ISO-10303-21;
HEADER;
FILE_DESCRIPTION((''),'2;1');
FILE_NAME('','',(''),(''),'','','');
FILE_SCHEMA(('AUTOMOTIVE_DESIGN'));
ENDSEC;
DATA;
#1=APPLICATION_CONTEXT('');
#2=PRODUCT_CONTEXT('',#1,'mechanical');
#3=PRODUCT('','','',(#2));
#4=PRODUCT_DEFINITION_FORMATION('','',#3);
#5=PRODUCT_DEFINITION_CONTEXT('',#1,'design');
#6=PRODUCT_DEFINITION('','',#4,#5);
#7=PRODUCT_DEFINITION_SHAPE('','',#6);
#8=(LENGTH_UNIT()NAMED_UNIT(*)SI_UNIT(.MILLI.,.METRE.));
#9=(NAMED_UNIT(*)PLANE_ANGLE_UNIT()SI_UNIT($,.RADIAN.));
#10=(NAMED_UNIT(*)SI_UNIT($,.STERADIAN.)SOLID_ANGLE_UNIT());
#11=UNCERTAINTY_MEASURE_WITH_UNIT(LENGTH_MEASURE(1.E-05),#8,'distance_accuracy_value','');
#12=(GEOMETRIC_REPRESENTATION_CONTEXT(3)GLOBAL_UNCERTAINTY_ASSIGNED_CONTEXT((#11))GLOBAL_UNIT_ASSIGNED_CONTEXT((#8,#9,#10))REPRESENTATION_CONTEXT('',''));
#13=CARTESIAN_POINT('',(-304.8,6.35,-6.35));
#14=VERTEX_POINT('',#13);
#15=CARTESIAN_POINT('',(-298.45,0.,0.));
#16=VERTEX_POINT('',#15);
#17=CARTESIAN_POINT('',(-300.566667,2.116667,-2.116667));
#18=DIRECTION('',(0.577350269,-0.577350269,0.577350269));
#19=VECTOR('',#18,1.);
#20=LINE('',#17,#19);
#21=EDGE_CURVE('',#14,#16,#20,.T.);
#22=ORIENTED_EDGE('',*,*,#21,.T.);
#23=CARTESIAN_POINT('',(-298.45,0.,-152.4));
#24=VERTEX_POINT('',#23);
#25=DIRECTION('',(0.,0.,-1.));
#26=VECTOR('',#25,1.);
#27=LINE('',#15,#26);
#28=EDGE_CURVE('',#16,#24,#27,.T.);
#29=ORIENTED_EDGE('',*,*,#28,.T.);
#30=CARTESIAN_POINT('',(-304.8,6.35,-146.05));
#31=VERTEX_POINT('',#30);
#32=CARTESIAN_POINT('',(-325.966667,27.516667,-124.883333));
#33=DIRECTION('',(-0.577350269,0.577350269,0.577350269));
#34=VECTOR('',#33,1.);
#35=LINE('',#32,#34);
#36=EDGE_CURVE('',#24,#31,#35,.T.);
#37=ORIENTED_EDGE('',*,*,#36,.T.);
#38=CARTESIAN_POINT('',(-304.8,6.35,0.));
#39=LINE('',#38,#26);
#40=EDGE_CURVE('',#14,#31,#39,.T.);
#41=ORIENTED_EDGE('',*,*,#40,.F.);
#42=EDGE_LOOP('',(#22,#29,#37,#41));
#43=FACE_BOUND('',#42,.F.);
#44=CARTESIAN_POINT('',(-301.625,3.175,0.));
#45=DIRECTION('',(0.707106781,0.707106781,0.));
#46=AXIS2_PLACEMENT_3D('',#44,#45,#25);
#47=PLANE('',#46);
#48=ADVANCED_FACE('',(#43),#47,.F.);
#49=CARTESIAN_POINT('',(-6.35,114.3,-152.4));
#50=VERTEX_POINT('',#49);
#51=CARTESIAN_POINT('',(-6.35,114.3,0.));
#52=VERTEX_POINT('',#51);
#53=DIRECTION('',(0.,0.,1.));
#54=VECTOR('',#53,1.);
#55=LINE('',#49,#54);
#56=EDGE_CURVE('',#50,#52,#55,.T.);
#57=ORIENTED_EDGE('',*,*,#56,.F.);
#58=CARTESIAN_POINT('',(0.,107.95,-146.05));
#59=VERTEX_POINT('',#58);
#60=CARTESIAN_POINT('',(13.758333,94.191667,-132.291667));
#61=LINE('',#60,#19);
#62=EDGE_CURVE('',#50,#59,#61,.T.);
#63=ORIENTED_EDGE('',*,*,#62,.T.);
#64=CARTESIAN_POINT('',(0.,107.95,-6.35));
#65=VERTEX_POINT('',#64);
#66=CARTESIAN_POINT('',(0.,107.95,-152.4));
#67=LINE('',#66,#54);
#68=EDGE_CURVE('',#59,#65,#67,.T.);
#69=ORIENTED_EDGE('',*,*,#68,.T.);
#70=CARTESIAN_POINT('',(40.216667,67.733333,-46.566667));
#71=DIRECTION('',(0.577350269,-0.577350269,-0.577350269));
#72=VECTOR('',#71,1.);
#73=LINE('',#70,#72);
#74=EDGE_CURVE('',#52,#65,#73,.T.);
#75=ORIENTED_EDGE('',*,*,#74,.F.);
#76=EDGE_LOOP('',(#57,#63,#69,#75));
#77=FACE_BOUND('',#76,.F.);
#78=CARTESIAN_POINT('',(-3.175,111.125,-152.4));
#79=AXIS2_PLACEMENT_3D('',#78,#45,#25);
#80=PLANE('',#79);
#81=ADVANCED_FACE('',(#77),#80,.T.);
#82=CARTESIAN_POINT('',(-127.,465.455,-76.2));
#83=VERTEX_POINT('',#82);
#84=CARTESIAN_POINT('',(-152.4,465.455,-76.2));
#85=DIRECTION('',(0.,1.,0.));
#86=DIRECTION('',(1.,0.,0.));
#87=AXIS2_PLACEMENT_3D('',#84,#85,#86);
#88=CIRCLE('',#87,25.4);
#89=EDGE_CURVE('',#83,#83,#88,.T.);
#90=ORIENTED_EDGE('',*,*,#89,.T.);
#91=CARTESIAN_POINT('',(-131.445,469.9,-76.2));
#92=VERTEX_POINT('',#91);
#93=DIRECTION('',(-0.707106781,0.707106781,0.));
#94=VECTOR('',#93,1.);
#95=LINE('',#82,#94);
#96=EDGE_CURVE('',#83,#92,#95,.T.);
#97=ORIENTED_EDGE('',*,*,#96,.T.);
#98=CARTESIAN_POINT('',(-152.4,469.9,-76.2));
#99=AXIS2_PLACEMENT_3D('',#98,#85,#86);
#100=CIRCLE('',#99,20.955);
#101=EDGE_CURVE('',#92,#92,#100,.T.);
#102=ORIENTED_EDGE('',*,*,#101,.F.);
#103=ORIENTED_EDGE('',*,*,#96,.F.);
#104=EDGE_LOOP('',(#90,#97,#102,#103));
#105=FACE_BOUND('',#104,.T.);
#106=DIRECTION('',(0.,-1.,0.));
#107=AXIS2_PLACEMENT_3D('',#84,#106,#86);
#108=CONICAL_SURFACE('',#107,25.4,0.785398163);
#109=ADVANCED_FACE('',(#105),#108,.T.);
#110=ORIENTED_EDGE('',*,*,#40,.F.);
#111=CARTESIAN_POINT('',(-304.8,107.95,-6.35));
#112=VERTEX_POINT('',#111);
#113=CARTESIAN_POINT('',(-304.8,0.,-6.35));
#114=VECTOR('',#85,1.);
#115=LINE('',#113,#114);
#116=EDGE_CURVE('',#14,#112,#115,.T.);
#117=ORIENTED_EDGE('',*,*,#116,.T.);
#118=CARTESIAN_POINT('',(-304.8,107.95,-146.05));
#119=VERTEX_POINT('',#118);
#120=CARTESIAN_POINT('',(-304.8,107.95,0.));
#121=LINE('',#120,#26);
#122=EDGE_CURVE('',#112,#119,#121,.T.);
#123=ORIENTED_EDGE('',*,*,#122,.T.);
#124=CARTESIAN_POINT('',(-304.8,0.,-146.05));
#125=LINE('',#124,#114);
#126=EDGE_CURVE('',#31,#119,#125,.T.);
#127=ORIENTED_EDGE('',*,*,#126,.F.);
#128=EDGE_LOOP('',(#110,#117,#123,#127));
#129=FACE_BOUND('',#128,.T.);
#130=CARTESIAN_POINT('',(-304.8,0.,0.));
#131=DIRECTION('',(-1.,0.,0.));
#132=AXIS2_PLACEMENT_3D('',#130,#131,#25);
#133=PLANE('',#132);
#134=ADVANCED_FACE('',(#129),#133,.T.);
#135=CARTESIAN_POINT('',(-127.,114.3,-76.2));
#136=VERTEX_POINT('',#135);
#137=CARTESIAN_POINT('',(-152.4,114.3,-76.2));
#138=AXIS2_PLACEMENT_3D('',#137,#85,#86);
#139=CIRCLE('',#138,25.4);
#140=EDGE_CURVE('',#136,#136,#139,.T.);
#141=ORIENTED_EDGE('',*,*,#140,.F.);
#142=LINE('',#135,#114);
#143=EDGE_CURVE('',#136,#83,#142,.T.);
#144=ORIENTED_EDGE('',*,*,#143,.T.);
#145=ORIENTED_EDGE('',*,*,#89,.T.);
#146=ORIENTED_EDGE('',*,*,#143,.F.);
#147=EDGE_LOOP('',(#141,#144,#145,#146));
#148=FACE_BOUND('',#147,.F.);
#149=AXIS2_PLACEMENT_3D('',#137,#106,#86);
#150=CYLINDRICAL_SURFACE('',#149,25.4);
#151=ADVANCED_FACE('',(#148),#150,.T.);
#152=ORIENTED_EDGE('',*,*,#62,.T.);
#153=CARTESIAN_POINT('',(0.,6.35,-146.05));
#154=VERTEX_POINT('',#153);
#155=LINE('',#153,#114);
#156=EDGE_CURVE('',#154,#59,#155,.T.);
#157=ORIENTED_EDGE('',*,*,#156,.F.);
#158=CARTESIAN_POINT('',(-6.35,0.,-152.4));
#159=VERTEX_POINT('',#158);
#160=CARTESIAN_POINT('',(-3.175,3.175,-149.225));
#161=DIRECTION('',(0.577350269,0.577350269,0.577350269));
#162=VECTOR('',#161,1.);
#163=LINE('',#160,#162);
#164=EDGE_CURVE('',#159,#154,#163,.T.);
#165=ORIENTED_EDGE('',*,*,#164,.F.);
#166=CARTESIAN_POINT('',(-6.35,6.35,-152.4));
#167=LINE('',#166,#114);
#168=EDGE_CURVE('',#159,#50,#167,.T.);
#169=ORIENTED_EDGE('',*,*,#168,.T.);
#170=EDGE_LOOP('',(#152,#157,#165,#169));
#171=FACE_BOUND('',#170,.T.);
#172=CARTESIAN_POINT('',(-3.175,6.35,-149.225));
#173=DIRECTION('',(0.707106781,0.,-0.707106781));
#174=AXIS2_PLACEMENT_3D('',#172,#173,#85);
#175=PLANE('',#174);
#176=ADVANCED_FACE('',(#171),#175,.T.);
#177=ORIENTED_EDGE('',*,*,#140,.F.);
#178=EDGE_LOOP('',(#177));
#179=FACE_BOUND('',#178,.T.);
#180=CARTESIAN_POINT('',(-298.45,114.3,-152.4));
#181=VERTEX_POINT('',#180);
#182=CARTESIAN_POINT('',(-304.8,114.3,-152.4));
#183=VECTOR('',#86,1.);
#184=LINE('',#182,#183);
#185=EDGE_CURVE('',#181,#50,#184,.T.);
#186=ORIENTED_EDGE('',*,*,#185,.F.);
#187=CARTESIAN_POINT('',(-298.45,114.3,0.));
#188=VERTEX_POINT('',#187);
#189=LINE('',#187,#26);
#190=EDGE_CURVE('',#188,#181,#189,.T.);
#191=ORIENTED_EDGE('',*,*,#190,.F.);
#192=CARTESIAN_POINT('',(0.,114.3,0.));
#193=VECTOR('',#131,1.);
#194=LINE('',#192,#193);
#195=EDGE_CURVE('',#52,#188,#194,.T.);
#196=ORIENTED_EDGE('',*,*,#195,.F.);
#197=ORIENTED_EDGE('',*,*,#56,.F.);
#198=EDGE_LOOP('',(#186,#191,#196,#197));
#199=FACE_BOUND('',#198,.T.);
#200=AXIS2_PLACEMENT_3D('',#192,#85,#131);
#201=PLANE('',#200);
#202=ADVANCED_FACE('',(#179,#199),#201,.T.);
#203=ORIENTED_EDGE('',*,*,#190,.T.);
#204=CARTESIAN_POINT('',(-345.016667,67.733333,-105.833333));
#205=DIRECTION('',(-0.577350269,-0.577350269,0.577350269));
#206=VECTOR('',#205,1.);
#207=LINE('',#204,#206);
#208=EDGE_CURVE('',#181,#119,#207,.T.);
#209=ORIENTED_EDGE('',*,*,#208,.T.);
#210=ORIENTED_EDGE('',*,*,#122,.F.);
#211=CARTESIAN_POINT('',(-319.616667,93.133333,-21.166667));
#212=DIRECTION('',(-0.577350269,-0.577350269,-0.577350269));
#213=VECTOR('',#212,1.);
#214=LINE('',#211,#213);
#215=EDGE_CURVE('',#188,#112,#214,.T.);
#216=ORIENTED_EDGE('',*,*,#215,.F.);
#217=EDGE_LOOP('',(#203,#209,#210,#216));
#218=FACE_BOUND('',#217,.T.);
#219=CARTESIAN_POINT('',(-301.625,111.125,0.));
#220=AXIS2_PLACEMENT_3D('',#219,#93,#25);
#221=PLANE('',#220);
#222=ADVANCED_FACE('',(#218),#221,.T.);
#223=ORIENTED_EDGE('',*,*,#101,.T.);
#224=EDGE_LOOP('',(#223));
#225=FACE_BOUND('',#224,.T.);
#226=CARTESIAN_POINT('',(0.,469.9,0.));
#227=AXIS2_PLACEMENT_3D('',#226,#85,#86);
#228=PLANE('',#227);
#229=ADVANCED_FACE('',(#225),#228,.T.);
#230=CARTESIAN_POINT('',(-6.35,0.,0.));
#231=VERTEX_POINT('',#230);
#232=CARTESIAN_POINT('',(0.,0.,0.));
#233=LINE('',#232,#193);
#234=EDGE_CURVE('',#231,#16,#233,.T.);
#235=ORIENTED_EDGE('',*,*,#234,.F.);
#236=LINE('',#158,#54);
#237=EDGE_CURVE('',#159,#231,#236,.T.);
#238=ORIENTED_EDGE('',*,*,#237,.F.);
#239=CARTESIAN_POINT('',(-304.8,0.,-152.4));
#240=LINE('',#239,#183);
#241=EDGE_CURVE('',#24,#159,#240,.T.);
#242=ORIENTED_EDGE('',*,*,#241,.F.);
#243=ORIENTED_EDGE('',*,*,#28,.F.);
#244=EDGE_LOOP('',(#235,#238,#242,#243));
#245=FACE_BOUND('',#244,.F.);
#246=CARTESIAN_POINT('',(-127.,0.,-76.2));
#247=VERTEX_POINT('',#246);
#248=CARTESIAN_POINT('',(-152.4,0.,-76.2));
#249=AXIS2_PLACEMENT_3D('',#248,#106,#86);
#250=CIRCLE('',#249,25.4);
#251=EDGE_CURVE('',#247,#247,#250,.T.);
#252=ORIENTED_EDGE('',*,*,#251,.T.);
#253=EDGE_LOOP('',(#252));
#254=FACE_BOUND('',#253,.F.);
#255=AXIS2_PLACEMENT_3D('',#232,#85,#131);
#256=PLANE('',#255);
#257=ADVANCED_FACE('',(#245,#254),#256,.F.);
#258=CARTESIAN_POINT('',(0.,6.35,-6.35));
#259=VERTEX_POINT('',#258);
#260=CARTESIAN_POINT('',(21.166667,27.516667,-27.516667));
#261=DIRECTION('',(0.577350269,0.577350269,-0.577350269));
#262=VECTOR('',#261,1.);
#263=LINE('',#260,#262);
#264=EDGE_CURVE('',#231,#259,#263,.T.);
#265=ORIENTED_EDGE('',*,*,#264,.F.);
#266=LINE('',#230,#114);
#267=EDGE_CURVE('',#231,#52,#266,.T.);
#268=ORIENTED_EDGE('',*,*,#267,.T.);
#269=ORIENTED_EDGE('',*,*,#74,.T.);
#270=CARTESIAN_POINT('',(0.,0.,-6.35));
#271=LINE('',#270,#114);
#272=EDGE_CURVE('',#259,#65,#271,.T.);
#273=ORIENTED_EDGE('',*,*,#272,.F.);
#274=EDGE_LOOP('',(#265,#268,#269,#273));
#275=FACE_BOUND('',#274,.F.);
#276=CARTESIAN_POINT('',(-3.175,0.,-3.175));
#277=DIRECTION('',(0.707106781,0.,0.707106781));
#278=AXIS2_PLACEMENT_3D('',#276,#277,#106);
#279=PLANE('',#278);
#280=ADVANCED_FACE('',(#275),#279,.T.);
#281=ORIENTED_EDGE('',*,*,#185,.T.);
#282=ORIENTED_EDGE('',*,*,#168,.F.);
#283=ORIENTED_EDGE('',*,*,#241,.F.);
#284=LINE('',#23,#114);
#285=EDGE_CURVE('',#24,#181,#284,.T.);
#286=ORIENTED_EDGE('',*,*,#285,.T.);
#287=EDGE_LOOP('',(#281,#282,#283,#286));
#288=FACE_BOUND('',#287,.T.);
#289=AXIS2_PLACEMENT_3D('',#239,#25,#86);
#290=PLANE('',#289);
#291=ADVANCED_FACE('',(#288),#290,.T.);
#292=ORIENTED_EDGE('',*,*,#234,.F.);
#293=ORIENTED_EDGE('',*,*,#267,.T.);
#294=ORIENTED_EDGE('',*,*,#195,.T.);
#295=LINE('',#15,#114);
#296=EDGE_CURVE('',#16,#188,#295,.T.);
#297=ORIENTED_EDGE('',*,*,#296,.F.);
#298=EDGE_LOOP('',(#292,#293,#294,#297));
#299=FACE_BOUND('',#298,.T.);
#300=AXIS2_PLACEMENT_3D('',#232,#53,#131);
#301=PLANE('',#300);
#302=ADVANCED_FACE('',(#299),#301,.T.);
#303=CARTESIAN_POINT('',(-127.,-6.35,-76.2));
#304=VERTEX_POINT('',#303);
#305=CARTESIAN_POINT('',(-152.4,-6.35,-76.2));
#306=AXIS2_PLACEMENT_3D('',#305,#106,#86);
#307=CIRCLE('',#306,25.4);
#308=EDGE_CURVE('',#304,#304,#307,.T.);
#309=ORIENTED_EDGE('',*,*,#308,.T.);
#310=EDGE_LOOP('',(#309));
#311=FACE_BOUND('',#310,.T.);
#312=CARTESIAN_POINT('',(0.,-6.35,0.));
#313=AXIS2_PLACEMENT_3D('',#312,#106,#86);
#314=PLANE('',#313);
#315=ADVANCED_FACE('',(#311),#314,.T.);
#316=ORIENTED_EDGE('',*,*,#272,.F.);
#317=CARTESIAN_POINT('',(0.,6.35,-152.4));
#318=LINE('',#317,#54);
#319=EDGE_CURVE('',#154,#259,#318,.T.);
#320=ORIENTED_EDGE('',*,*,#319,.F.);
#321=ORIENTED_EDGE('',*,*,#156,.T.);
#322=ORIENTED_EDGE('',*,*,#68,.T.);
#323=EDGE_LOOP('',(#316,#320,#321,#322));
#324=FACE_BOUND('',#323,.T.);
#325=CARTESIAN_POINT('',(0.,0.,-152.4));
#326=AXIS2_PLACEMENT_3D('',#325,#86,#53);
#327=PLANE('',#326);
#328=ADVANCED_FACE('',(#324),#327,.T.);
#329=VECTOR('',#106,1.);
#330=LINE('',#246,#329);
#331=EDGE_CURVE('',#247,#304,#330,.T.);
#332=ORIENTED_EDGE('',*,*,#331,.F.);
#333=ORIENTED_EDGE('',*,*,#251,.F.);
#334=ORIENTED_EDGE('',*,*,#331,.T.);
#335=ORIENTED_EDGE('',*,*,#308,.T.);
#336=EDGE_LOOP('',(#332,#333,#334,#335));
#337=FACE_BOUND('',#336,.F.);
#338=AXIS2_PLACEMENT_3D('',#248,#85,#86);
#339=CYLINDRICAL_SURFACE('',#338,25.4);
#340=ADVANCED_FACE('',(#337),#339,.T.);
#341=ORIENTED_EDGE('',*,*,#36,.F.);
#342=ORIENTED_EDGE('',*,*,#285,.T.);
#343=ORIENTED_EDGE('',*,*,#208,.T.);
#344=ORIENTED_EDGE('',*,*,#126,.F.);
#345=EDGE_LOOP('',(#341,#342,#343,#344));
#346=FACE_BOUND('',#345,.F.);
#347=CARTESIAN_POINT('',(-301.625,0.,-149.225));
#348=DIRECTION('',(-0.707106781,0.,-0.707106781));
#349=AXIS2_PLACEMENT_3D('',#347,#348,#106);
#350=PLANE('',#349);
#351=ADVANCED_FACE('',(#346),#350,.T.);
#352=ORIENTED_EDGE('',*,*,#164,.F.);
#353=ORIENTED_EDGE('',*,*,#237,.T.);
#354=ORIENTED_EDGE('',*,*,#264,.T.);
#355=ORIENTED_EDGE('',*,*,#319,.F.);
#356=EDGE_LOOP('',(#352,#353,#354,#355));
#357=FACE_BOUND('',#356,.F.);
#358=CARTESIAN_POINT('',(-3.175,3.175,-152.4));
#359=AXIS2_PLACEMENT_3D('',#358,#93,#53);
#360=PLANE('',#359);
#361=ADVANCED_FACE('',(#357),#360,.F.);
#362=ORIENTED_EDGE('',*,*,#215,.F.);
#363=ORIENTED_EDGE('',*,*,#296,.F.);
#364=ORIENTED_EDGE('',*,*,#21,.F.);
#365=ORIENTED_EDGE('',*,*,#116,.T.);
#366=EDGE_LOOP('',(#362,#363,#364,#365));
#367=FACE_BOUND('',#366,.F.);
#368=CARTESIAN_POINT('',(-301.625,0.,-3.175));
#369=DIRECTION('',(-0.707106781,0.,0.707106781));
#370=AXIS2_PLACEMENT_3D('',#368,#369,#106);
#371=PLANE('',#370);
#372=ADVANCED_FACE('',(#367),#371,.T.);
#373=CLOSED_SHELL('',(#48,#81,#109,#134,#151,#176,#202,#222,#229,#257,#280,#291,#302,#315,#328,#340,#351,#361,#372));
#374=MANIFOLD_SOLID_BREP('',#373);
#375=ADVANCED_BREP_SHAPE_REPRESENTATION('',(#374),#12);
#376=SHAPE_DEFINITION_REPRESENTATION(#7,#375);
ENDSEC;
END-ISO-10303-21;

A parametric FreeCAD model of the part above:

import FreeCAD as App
import Part
import Sketcher

V = App.Vector
Q = App.Units.Quantity


def edges_at(feature, points):
    """Names of the edges that pass closest to the given points."""
    edges = feature.Shape.Edges
    near = lambda p: min(range(len(edges)), key=lambda i: edges[i].distToShape(Part.Vertex(*p))[0])
    return sorted({f"Edge{near(p) + 1}" for p in points})

doc = App.newDocument("Part")
params = doc.addObject("Spreadsheet::Sheet", "Params")
for row, (alias, value) in enumerate([
    ("sketch1_width", "12 in"),
    ("sketch1_height", "6 in"),
    ("pad1_length", "4.5 in"),
    ("sketch2_diameter", "2 in"),
    ("pad2_length", "14 in"),
    ("chamfer_size", "0.25 in"),
    ("chamfer2_size", "0.25 in"),
    ("chamfer3_size", "0.25 in"),
    ("chamfer4_size", "0.25 in"),
    ("chamfer5_size", "0.25 in"),
    ("chamfer6_size", "0.175 in"),
    ("sketch3_diameter", "2 in"),
    ("pad3_length", "0.25 in"),
], start=1):
    params.set(f"A{row}", alias)
    params.set(f"B{row}", "=" + value)
    params.setAlias(f"B{row}", alias)

body = doc.addObject("PartDesign::Body", "Body")

# Sketch on XZ plane
sketch1 = body.newObject("Sketcher::SketchObject", "Sketch")
sketch1.AttachmentSupport = (doc.getObject("XZ_Plane"), [""])
sketch1.MapMode = "FlatFace"
sketch1.addGeometry([
    Part.LineSegment(V(-305, 0, 0), V(0, 0, 0)),
    Part.LineSegment(V(0, 0, 0), V(0, -152, 0)),
    Part.LineSegment(V(0, -152, 0), V(-305, -152, 0)),
    Part.LineSegment(V(-305, -152, 0), V(-305, 0, 0)),
], False)
sketch1.addConstraint([
    Sketcher.Constraint("Coincident", 0, 2, 1, 1),
    Sketcher.Constraint("Coincident", 1, 2, 2, 1),
    Sketcher.Constraint("Coincident", 2, 2, 3, 1),
    Sketcher.Constraint("Coincident", 3, 2, 0, 1),
    Sketcher.Constraint("Horizontal", 0),
    Sketcher.Constraint("Vertical", 1),
    Sketcher.Constraint("Horizontal", 2),
    Sketcher.Constraint("Vertical", 3),
    Sketcher.Constraint("Coincident", 0, 2, -1, 1),
    Sketcher.Constraint("DistanceX", 0, 1, 0, 2, Q("12 in")),
    Sketcher.Constraint("DistanceY", 1, 2, 1, 1, Q("6 in")),
])
sketch1.setExpression("Constraints[9]", "Params.sketch1_width")
sketch1.setExpression("Constraints[10]", "Params.sketch1_height")
pad1 = body.newObject("PartDesign::Pad", "Pad")
pad1.Profile = sketch1
pad1.setExpression("Length", "Params.pad1_length")
pad1.Reversed = True

# Sketch on XZ plane
sketch2 = body.newObject("Sketcher::SketchObject", "Sketch001")
sketch2.AttachmentSupport = (doc.getObject("XZ_Plane"), [""])
sketch2.MapMode = "FlatFace"
sketch2.AttachmentOffset = App.Placement(V(0, 0, -4.5 * 25.4), App.Rotation())
sketch2.addGeometry(Part.Circle(V(-152, -76, 0), V(0, 0, 1), 25), False)
sketch2.addConstraint([
    Sketcher.Constraint("Diameter", 0, Q("2 in")),
    Sketcher.Constraint("DistanceX", 0, 3, -1, 1, Q("6 in")),
    Sketcher.Constraint("DistanceY", 0, 3, -1, 1, Q("3 in")),
])
sketch2.setExpression("Constraints[0]", "Params.sketch2_diameter")
pad2 = body.newObject("PartDesign::Pad", "Pad001")
pad2.Profile = sketch2
pad2.setExpression("Length", "Params.pad2_length")
pad2.Reversed = True
doc.recompute()

chamfer = body.newObject("PartDesign::Chamfer", "Chamfer")
chamfer.Base = (pad2, edges_at(pad2, [(0, 114.3, -76.2)]))
chamfer.setExpression("Size", "Params.chamfer_size")
doc.recompute()

chamfer2 = body.newObject("PartDesign::Chamfer", "Chamfer001")
chamfer2.Base = (chamfer, edges_at(chamfer, [(0, 53.975, 0)]))
chamfer2.setExpression("Size", "Params.chamfer2_size")
doc.recompute()

chamfer3 = body.newObject("PartDesign::Chamfer", "Chamfer002")
chamfer3.Base = (chamfer2, edges_at(chamfer2, [(0, 0, -79.375)]))
chamfer3.setExpression("Size", "Params.chamfer3_size")
doc.recompute()

chamfer4 = body.newObject("PartDesign::Chamfer", "Chamfer003")
chamfer4.Base = (chamfer3, edges_at(chamfer3, [(0, 57.15, -152.4)]))
chamfer4.setExpression("Size", "Params.chamfer4_size")
doc.recompute()

chamfer5 = body.newObject("PartDesign::Chamfer", "Chamfer004")
chamfer5.Base = (chamfer4, edges_at(chamfer4, [
    (-304.8, 114.3, -76.2),
    (-304.8, 57.15, -152.4),
    (-304.8, 57.15, 0),
    (-304.8, 0, -76.2),
]))
chamfer5.setExpression("Size", "Params.chamfer5_size")
doc.recompute()

chamfer6 = body.newObject("PartDesign::Chamfer", "Chamfer005")
chamfer6.Base = (chamfer5, edges_at(chamfer5, [(-177.8, 469.9, -76.2)]))
chamfer6.setExpression("Size", "Params.chamfer6_size")

# Sketch on XZ plane
sketch3 = body.newObject("Sketcher::SketchObject", "Sketch002")
sketch3.AttachmentSupport = (doc.getObject("XZ_Plane"), [""])
sketch3.MapMode = "FlatFace"
sketch3.addGeometry(Part.Circle(V(-152, -76, 0), V(0, 0, 1), 25), False)
sketch3.addConstraint([
    Sketcher.Constraint("Diameter", 0, Q("2 in")),
    Sketcher.Constraint("DistanceX", 0, 3, -1, 1, Q("6 in")),
    Sketcher.Constraint("DistanceY", 0, 3, -1, 1, Q("3 in")),
])
sketch3.setExpression("Constraints[0]", "Params.sketch3_diameter")
pad3 = body.newObject("PartDesign::Pad", "Pad002")
pad3.Profile = sketch3
pad3.setExpression("Length", "Params.pad3_length")

doc.recompute()
